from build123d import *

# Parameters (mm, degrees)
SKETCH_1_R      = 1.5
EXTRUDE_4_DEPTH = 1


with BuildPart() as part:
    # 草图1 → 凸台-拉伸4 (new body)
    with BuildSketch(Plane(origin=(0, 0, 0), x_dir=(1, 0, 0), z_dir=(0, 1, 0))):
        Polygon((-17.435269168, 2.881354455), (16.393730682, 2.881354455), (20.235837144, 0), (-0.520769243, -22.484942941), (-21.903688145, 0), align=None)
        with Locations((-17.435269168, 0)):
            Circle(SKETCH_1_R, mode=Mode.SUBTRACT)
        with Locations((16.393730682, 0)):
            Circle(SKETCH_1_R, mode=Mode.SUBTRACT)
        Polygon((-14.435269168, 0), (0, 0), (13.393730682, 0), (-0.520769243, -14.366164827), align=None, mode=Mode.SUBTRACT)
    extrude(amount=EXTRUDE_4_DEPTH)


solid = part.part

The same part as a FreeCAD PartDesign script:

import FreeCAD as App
import Part
import Sketcher

V = App.Vector
Q = App.Units.Quantity

doc = App.newDocument("Part")
body = doc.addObject("PartDesign::Body", "Body")

sketch1 = doc.addObject("Sketcher::SketchObject", "Sketch")
body.addObject(sketch1)
sketch1.AttachmentSupport = (doc.XZ_Plane, [""])
sketch1.MapMode = "FlatFace"
sketch1.addGeometry([
    Part.LineSegment(V(16.4, -2.9, 0), V(-17.4, -2.9, 0)),
    Part.LineSegment(V(-17.4, -2.9, 0), V(-21.9, 0, 0)),
    Part.LineSegment(V(-21.9, 0, 0), V(-0.5, 22.5, 0)),
    Part.LineSegment(V(-0.5, 22.5, 0), V(20.2, 0, 0)),
    Part.LineSegment(V(20.2, 0, 0), V(16.4, -2.9, 0)),
    Part.LineSegment(V(-14.4, 0, 0), V(13.4, 0, 0)),
    Part.LineSegment(V(13.4, 0, 0), V(-0.5, 14.4, 0)),
    Part.LineSegment(V(-0.5, 14.4, 0), V(-14.4, 0, 0)),
    Part.Circle(V(16.4, 0, 0), V(0, 0, 1), 1.5),
    Part.Circle(V(-17.4, 0, 0), V(0, 0, 1), 1.5),
], False)
sketch1.addConstraint([
    Sketcher.Constraint("Coincident", 0, 2, 1, 1),
    Sketcher.Constraint("Coincident", 1, 2, 2, 1),
    Sketcher.Constraint("Coincident", 2, 2, 3, 1),
    Sketcher.Constraint("Coincident", 3, 2, 4, 1),
    Sketcher.Constraint("Coincident", 4, 2, 0, 1),
    Sketcher.Constraint("Coincident", 5, 2, 6, 1),
    Sketcher.Constraint("Coincident", 6, 2, 7, 1),
    Sketcher.Constraint("Coincident", 7, 2, 5, 1),
    Sketcher.Constraint("Horizontal", 0),
    Sketcher.Constraint("Horizontal", 5),
    Sketcher.Constraint("Equal", 8, 9),
    Sketcher.Constraint("PointOnObject", 8, 3, -1),
    Sketcher.Constraint("PointOnObject", 9, 3, -1),
    Sketcher.Constraint("PointOnObject", 1, 2, -1),
    Sketcher.Constraint("PointOnObject", 3, 2, -1),
    Sketcher.Constraint("PointOnObject", 5, 2, -1),
    Sketcher.Constraint("Vertical", 9, 3, 0, 2),
    Sketcher.Constraint("Vertical", 8, 3, 4, 2),
    Sketcher.Constraint("Vertical", 2, 2, 6, 2),
    Sketcher.Constraint("Equal", 6, 7),
    Sketcher.Constraint("Diameter", 8, Q("3 mm")),
    Sketcher.Constraint("Distance", 6, Q("20 mm")),
    Sketcher.Constraint("DistanceX", 5, 2, 8, 3, Q("3 mm")),
    Sketcher.Constraint("DistanceX", 9, 3, 7, 2, Q("3 mm")),
    Sketcher.Constraint("DistanceX", 0, 2, 0, 1, Q("33.829 mm")),
    Sketcher.Constraint("Distance", 2, Q("31.029049 mm")),
    Sketcher.Constraint("DistanceX", -1, 1, 8, 3, Q("16.393731 mm")),
    Sketcher.Constraint("DistanceX", 1, 2, -1, 1, Q("21.903688 mm")),
    Sketcher.Constraint("DistanceY", 0, 2, 6, 2, Q("17.247519 mm")),
    Sketcher.Constraint("Distance", 3, Q("30.600807 mm")),
])
pad1 = doc.addObject("PartDesign::Pad", "Pad")
body.addObject(pad1)
pad1.Profile = sketch1
pad1.Length = 1
pad1.Reversed = True

doc.recompute()
